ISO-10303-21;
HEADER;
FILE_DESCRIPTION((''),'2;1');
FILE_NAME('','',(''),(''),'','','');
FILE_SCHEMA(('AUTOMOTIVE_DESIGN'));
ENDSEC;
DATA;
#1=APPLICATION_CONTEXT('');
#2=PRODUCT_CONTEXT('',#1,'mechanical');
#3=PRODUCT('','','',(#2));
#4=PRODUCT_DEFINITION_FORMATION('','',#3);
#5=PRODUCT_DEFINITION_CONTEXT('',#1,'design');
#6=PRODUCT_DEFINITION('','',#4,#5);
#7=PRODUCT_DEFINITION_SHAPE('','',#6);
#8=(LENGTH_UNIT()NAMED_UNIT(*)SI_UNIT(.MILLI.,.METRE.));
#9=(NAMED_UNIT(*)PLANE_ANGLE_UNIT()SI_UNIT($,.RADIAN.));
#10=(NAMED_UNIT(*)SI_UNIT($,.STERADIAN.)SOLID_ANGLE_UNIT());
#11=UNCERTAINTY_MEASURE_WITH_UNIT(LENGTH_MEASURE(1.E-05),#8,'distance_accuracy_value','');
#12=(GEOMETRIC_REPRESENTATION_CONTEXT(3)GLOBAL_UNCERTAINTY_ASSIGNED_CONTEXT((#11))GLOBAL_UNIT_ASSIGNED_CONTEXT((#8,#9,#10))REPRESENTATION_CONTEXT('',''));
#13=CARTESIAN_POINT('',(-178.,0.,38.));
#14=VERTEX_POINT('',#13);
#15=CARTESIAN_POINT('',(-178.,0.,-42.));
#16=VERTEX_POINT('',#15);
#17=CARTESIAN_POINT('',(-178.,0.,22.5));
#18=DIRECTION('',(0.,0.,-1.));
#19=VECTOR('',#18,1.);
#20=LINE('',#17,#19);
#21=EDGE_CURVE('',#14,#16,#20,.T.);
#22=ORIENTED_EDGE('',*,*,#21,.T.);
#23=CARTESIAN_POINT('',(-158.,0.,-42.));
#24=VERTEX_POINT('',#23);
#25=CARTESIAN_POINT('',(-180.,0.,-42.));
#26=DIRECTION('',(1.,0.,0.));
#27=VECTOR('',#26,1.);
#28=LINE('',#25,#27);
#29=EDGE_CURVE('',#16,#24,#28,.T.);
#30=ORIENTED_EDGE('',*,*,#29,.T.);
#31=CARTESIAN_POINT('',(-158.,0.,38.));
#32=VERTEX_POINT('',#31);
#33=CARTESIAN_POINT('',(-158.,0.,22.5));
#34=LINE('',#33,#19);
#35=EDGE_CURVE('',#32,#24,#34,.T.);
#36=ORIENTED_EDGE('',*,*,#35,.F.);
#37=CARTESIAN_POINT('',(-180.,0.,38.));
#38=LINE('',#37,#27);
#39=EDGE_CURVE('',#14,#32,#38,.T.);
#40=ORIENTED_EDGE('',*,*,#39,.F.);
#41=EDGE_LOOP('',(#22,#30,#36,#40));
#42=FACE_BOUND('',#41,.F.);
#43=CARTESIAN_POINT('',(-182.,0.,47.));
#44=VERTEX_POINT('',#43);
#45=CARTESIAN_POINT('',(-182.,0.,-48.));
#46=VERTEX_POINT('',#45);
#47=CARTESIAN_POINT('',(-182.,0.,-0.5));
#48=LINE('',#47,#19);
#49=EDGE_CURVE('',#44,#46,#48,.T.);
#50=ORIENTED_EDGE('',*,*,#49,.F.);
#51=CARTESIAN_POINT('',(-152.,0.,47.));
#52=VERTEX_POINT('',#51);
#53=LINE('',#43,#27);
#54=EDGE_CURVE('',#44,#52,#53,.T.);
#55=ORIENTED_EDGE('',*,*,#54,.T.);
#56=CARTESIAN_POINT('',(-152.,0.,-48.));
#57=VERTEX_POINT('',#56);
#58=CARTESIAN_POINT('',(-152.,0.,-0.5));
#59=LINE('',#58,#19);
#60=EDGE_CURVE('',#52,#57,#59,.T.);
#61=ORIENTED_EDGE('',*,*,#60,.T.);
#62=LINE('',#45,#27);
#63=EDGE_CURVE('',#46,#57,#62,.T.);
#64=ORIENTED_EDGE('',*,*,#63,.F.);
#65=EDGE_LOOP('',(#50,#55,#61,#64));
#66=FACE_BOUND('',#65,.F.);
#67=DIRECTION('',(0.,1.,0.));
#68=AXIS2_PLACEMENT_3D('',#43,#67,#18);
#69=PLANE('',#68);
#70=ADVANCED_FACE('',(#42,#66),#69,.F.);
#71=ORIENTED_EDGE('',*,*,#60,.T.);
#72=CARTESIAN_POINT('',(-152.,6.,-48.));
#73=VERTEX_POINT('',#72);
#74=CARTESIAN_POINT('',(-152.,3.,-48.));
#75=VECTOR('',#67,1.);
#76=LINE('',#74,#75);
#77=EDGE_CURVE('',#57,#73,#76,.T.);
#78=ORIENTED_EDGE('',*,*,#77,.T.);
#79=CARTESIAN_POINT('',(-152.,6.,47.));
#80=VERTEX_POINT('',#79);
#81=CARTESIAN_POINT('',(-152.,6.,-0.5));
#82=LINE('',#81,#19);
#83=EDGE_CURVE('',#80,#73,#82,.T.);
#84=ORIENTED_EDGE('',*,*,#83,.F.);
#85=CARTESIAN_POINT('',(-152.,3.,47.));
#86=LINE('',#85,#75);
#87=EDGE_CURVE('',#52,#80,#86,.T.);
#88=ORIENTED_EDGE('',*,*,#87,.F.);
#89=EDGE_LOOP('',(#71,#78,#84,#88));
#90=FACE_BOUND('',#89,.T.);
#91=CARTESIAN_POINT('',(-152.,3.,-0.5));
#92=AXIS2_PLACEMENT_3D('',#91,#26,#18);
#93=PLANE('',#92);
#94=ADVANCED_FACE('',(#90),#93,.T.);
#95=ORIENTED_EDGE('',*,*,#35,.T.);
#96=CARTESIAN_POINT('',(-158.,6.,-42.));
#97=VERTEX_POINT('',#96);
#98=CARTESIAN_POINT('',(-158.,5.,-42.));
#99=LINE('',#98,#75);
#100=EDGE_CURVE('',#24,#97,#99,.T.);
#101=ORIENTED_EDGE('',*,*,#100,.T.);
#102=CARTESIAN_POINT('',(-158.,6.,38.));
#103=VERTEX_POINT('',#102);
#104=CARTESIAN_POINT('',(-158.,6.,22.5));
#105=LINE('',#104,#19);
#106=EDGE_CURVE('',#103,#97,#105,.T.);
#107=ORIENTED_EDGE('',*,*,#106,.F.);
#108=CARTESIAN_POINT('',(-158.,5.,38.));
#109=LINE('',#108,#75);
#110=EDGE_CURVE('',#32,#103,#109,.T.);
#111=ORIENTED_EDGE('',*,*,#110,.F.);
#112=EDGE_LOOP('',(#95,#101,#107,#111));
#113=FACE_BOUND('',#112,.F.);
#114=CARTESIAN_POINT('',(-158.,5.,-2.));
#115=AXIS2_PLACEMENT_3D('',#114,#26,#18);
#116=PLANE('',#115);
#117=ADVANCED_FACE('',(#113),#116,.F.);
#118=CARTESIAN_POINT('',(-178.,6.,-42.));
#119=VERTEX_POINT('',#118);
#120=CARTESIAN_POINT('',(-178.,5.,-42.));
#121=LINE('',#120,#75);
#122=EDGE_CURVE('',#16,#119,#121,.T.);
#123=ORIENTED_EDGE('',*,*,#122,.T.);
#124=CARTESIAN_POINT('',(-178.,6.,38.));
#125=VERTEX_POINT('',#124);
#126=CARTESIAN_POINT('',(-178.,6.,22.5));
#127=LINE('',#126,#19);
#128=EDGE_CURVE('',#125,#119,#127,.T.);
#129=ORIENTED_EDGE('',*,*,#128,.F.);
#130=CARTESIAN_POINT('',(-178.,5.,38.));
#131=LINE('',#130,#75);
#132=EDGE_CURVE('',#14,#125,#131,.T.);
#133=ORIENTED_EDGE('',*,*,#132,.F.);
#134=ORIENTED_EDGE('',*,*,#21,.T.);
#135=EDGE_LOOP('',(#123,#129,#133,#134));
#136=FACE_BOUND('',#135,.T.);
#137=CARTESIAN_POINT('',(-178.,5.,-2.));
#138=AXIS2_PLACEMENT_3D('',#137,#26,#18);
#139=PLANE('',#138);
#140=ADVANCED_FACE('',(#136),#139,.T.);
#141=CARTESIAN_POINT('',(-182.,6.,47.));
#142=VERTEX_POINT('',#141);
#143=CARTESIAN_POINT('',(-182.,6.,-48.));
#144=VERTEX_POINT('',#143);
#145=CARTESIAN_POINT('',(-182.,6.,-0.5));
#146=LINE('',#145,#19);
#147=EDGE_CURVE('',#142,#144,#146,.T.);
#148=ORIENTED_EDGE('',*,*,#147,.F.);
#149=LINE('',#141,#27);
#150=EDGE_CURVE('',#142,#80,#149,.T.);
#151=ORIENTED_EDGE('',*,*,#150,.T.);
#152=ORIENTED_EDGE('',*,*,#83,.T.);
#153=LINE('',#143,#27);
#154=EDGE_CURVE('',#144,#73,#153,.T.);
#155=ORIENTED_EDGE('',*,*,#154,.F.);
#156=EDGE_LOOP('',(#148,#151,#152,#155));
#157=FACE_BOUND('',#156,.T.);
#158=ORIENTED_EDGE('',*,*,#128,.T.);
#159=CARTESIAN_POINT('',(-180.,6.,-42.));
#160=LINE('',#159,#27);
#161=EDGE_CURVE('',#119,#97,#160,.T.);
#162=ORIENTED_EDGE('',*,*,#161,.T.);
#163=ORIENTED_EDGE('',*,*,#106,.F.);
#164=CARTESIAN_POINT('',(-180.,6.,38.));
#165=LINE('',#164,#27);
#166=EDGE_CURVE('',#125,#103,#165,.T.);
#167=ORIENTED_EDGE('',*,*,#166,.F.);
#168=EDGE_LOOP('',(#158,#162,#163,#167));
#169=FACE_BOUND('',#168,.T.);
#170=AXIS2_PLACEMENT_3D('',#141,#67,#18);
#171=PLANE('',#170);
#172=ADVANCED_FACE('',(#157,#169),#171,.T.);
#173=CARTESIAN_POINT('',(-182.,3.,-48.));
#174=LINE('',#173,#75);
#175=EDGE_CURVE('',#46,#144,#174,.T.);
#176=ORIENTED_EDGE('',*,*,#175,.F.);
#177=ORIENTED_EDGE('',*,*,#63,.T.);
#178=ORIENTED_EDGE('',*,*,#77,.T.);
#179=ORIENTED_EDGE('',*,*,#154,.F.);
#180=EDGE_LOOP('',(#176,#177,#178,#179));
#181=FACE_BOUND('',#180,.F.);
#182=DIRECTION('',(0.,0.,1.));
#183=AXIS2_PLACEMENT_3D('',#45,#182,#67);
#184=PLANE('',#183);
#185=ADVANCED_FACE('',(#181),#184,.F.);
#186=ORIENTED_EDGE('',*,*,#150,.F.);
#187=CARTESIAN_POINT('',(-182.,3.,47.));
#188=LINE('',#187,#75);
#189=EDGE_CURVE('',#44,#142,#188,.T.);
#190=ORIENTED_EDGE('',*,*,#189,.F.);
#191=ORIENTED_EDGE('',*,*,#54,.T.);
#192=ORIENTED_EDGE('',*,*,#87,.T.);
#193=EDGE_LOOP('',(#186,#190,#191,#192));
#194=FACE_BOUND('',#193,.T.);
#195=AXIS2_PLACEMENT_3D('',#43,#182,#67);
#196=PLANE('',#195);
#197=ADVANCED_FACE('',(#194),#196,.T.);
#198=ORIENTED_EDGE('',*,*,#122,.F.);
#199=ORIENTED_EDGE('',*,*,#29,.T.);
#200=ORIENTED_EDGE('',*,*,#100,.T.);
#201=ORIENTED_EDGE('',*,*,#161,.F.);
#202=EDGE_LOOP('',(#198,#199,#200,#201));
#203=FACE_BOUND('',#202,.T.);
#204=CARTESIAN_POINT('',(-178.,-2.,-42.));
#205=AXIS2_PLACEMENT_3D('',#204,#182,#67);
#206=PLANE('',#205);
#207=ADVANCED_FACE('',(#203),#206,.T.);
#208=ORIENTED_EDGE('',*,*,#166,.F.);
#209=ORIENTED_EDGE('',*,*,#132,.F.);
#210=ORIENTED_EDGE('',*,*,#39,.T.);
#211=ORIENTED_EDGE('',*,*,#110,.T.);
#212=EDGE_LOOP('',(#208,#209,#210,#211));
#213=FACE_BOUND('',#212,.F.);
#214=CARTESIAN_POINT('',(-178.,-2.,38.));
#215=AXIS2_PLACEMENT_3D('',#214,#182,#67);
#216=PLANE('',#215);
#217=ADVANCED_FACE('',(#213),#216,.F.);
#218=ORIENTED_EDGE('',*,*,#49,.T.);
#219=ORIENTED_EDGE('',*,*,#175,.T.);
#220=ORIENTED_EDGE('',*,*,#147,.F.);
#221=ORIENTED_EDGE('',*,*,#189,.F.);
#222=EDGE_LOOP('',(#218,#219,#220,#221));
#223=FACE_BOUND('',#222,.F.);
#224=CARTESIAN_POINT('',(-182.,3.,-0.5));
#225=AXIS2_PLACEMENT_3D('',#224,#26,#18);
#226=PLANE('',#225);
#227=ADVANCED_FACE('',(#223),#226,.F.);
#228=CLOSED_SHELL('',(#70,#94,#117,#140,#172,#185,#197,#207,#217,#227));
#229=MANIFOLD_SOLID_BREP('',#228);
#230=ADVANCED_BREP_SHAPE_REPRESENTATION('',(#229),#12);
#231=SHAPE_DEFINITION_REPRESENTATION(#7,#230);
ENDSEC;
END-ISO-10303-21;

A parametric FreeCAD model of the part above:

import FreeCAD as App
import Part
import Sketcher

V = App.Vector

doc = App.newDocument("Part")
body = doc.addObject("PartDesign::Body", "Body")

# Sketch on YZ plane
sketch1 = body.newObject("Sketcher::SketchObject", "Sketch")
sketch1.AttachmentSupport = (doc.getObject("YZ_Plane"), [""])
sketch1.MapMode = "FlatFace"
sketch1.AttachmentOffset = App.Placement(V(0, 0, -139), App.Rotation())
sketch1.addGeometry([
    Part.LineSegment(V(13, 26, 0), V(-1, 26, 0)),
    Part.LineSegment(V(-1, 26, 0), V(-1, -54, 0)),
    Part.LineSegment(V(-1, -54, 0), V(13, -54, 0)),
    Part.LineSegment(V(13, -54, 0), V(13, 26, 0)),
], False)
sketch1.addConstraint([
    Sketcher.Constraint("Coincident", 0, 2, 1, 1),
    Sketcher.Constraint("Coincident", 1, 2, 2, 1),
    Sketcher.Constraint("Coincident", 2, 2, 3, 1),
    Sketcher.Constraint("Coincident", 3, 2, 0, 1),
    Sketcher.Constraint("Horizontal", 0),
    Sketcher.Constraint("Vertical", 1),
    Sketcher.Constraint("Horizontal", 2),
    Sketcher.Constraint("Vertical", 3),
    Sketcher.Constraint("DistanceX", 0, 2, 0, 1, 14.0),
    Sketcher.Constraint("DistanceY", 1, 2, 1, 1, 80.0),
    Sketcher.Constraint("DistanceX", 0, 2, -1, 1, 1.0),
    Sketcher.Constraint("DistanceY", -1, 1, 0, 2, 26.0),
])
pad1 = body.newObject("PartDesign::Pad", "Pad")
pad1.Profile = sketch1
pad1.Length = 20
body2 = doc.addObject("PartDesign::Body", "Body001")

# Sketch on YZ plane
sketch2 = body2.newObject("Sketcher::SketchObject", "Sketch001")
sketch2.AttachmentSupport = (doc.getObject("YZ_Plane001"), [""])
sketch2.MapMode = "FlatFace"
sketch2.AttachmentOffset = App.Placement(V(0, 0, -143), App.Rotation())
sketch2.addGeometry([
    Part.LineSegment(V(7, 35, 0), V(1, 35, 0)),
    Part.LineSegment(V(1, 35, 0), V(1, -60, 0)),
    Part.LineSegment(V(1, -60, 0), V(7, -60, 0)),
    Part.LineSegment(V(7, -60, 0), V(7, 35, 0)),
], False)
sketch2.addConstraint([
    Sketcher.Constraint("Coincident", 0, 2, 1, 1),
    Sketcher.Constraint("Coincident", 1, 2, 2, 1),
    Sketcher.Constraint("Coincident", 2, 2, 3, 1),
    Sketcher.Constraint("Coincident", 3, 2, 0, 1),
    Sketcher.Constraint("Horizontal", 0),
    Sketcher.Constraint("Vertical", 1),
    Sketcher.Constraint("Horizontal", 2),
    Sketcher.Constraint("Vertical", 3),
    Sketcher.Constraint("DistanceX", 0, 2, 0, 1, 6.0),
    Sketcher.Constraint("DistanceY", 1, 2, 1, 1, 95.0),
    Sketcher.Constraint("DistanceX", -1, 1, 0, 2, 1.0),
    Sketcher.Constraint("DistanceY", -1, 1, 0, 2, 35.0),
])
pad2 = body2.newObject("PartDesign::Pad", "Pad001")
pad2.Profile = sketch2
pad2.Length = 30
doc.recompute()

boolean = body2.newObject("PartDesign::Boolean", "Boolean")
boolean.Type = "Cut"
boolean.addObjects([body])
body3 = doc.addObject("PartDesign::Body", "Body002")
doc.recompute()

body2.Placement = App.Placement(V(-39, -1, 12), App.Rotation(V(0, 0, 1), 0))
boolean2 = body3.newObject("PartDesign::Boolean", "Boolean001")
boolean2.Type = "Fuse"
boolean2.addObjects([body2])

doc.recompute()
